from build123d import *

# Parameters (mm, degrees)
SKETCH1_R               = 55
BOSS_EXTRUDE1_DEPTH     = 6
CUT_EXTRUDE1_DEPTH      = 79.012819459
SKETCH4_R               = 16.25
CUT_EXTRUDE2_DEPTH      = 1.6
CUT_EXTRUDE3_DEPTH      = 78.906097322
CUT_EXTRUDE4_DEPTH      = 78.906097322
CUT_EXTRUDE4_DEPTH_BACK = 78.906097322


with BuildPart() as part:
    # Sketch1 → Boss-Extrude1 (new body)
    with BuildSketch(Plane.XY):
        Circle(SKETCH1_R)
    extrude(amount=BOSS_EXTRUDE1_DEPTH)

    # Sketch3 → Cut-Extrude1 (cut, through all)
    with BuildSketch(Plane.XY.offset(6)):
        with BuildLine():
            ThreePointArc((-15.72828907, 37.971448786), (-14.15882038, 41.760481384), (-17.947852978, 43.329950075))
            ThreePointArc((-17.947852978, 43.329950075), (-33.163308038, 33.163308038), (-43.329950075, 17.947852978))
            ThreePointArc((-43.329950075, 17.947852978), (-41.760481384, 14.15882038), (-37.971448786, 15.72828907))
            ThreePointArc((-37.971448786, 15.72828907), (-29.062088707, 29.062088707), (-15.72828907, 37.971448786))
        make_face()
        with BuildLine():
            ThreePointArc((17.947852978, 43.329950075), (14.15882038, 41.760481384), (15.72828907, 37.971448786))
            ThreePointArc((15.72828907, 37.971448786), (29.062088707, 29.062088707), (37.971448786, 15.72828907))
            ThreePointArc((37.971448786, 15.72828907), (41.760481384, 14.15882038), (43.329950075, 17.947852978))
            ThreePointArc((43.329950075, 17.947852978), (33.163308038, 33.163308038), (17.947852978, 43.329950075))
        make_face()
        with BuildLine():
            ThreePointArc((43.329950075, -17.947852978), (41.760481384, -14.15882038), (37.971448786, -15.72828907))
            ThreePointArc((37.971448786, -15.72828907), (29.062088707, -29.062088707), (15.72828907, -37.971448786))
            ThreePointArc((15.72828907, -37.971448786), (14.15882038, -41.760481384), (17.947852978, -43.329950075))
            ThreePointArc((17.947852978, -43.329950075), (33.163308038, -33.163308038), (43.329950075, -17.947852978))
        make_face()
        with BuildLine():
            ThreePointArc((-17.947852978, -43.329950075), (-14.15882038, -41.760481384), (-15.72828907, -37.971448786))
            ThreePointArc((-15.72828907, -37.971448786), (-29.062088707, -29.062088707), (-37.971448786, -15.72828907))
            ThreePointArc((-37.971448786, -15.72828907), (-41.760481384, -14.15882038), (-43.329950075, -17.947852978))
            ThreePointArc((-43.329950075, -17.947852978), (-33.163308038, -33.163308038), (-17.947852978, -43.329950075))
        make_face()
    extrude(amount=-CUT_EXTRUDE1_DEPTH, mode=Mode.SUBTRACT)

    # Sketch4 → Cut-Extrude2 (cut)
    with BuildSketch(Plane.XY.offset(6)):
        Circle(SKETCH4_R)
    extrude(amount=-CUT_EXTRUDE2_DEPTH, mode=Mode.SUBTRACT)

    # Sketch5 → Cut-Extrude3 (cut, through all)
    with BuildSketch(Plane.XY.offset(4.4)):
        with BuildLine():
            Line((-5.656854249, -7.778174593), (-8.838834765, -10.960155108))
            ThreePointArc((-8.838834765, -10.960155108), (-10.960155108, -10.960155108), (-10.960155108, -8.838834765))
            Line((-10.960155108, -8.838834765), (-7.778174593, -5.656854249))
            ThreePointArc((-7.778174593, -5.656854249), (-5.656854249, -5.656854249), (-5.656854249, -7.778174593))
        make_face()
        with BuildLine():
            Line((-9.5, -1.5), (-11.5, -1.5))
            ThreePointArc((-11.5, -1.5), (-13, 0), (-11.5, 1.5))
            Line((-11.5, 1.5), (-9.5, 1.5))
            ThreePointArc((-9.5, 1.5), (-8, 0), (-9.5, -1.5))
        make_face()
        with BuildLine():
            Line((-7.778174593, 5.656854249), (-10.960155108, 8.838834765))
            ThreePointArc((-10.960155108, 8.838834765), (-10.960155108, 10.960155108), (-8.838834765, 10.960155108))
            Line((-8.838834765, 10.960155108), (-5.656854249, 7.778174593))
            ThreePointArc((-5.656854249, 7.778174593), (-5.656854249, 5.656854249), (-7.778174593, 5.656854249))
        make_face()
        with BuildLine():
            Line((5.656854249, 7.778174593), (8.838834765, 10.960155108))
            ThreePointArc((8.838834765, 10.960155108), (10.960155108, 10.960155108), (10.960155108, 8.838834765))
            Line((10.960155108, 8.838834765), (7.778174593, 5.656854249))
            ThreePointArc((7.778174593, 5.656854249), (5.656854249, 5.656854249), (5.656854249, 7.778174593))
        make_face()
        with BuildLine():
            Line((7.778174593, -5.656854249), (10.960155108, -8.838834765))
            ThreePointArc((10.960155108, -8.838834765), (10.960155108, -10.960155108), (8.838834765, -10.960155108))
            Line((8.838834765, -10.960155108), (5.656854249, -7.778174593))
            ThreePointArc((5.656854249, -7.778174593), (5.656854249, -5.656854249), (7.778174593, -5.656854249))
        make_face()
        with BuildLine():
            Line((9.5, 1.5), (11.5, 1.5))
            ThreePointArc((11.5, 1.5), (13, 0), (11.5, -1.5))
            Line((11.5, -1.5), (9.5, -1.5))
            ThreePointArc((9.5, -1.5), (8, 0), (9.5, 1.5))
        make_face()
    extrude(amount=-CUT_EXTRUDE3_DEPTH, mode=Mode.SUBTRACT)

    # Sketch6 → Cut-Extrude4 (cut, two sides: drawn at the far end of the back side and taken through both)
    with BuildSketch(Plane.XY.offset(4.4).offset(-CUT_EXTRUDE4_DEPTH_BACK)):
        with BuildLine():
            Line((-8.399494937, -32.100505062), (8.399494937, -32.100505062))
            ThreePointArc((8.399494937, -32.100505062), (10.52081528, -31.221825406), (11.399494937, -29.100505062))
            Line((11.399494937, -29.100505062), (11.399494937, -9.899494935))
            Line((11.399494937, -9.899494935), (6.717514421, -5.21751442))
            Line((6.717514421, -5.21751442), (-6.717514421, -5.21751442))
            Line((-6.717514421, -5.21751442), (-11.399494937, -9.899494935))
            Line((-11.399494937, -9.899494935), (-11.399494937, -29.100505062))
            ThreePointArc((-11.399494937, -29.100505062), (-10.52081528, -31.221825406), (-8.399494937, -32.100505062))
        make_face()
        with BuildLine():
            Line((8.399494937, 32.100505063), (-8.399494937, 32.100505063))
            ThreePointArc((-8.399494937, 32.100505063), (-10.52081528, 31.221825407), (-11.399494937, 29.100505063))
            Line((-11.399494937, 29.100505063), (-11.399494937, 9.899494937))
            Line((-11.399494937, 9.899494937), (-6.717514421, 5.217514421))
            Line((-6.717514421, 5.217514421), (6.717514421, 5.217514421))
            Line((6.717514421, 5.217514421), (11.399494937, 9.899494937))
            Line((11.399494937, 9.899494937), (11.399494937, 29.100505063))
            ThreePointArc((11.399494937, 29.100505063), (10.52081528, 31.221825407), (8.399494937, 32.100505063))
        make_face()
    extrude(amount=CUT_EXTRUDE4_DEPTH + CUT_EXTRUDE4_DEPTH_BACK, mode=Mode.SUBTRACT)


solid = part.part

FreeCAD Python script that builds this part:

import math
import FreeCAD as App
import Part
import Sketcher

V = App.Vector

doc = App.newDocument("Part")
body = doc.addObject("PartDesign::Body", "Body")

sketch1 = body.newObject("Sketcher::SketchObject", "Sketch")
sketch1.AttachmentSupport = (doc.getObject("XY_Plane"), [""])
sketch1.MapMode = "FlatFace"
sketch1.addGeometry(Part.Circle(V(0, 0, 0), V(0, 0, 1), 55), False)
sketch1.addConstraint([
    Sketcher.Constraint("Coincident", 0, 3, -1, 1),
    Sketcher.Constraint("Diameter", 0, 110.0),
])
pad1 = body.newObject("PartDesign::Pad", "Pad")
pad1.Profile = sketch1
pad1.Length = 6

sketch2 = body.newObject("Sketcher::SketchObject", "Sketch001")
sketch2.AttachmentSupport = (doc.getObject("XY_Plane"), [""])
sketch2.MapMode = "FlatFace"
sketch2.AttachmentOffset = App.Placement(V(0, 0, 6), App.Rotation())
sketch2.addGeometry([
    Part.ArcOfCircle(Part.Circle(V(-16.8, 40.7, 0), V(0, 0, 1), 2.9), math.radians(-67), math.radians(112)),
    Part.ArcOfCircle(Part.Circle(V(0, 0, 0), V(0, 0, 1), 46.9), math.radians(112), math.radians(158)),
    Part.ArcOfCircle(Part.Circle(V(-40.7, 16.8, 0), V(0, 0, 1), 2.9), math.radians(158), math.radians(337)),
    Part.ArcOfCircle(Part.Circle(V(0, 0, 0), V(0, 0, 1), 41.1), math.radians(112), math.radians(158)),
    Part.ArcOfCircle(Part.Circle(V(16.8, 40.7, 0), V(0, 0, 1), 2.9), math.radians(68), math.radians(247)),
    Part.ArcOfCircle(Part.Circle(V(0, 0, 0), V(0, 0, 1), 41.1), math.radians(22), math.radians(68)),
    Part.ArcOfCircle(Part.Circle(V(40.7, 16.8, 0), V(0, 0, 1), 2.9), math.radians(-157), math.radians(22)),
    Part.ArcOfCircle(Part.Circle(V(0, 0, 0), V(0, 0, 1), 46.9), math.radians(22), math.radians(68)),
    Part.ArcOfCircle(Part.Circle(V(40.7, -16.8, 0), V(0, 0, 1), 2.9), math.radians(-22), math.radians(157)),
    Part.ArcOfCircle(Part.Circle(V(0, 0, 0), V(0, 0, 1), 41.1), math.radians(-68), math.radians(-22)),
    Part.ArcOfCircle(Part.Circle(V(16.8, -40.7, 0), V(0, 0, 1), 2.9), math.radians(113), math.radians(292)),
    Part.ArcOfCircle(Part.Circle(V(0, 0, 0), V(0, 0, 1), 46.9), math.radians(-68), math.radians(-22)),
    Part.ArcOfCircle(Part.Circle(V(-16.8, -40.7, 0), V(0, 0, 1), 2.9), math.radians(-112), math.radians(67)),
    Part.ArcOfCircle(Part.Circle(V(0, 0, 0), V(0, 0, 1), 41.1), math.radians(-158), math.radians(-112)),
    Part.ArcOfCircle(Part.Circle(V(-40.7, -16.8, 0), V(0, 0, 1), 2.9), math.radians(23), math.radians(202)),
    Part.ArcOfCircle(Part.Circle(V(0, 0, 0), V(0, 0, 1), 46.9), math.radians(-158), math.radians(-112)),
], False)
sketch2.addConstraint([
    Sketcher.Constraint("Tangent", 0, 2, 1, 1),
    Sketcher.Constraint("Tangent", 1, 2, 2, 1),
    Sketcher.Constraint("Tangent", 2, 2, 3, 2),
    Sketcher.Constraint("Tangent", 3, 1, 0, 1),
    Sketcher.Constraint("Tangent", 4, 2, 5, 2),
    Sketcher.Constraint("Tangent", 5, 1, 6, 1),
    Sketcher.Constraint("Tangent", 6, 2, 7, 1),
    Sketcher.Constraint("Tangent", 7, 2, 4, 1),
    Sketcher.Constraint("Tangent", 8, 2, 9, 2),
    Sketcher.Constraint("Tangent", 9, 1, 10, 1),
    Sketcher.Constraint("Tangent", 10, 2, 11, 1),
    Sketcher.Constraint("Tangent", 11, 2, 8, 1),
    Sketcher.Constraint("Tangent", 12, 2, 13, 2),
    Sketcher.Constraint("Tangent", 13, 1, 14, 1),
    Sketcher.Constraint("Tangent", 14, 2, 15, 1),
    Sketcher.Constraint("Tangent", 15, 2, 12, 1),
    Sketcher.Constraint("Coincident", 1, 3, -1, 1),
    Sketcher.Constraint("Coincident", 3, 3, -1, 1),
    Sketcher.Constraint("Coincident", 5, 3, -1, 1),
    Sketcher.Constraint("Coincident", 7, 3, -1, 1),
    Sketcher.Constraint("Coincident", 9, 3, -1, 1),
    Sketcher.Constraint("Coincident", 11, 3, -1, 1),
    Sketcher.Constraint("Coincident", 13, 3, -1, 1),
    Sketcher.Constraint("Coincident", 15, 3, -1, 1),
    Sketcher.Constraint("Equal", 2, 4),
    Sketcher.Constraint("Equal", 3, 5),
    Sketcher.Constraint("Equal", 6, 8),
    Sketcher.Constraint("Equal", 5, 9),
    Sketcher.Constraint("Equal", 10, 12),
    Sketcher.Constraint("Equal", 9, 13),
    Sketcher.Constraint("Horizontal", 0, 3, 4, 3),
    Sketcher.Constraint("Horizontal", 2, 3, 6, 3),
    Sketcher.Constraint("Horizontal", 10, 3, 12, 3),
    Sketcher.Constraint("Horizontal", 8, 3, 14, 3),
    Sketcher.Constraint("Vertical", 6, 3, 8, 3),
    Sketcher.Constraint("Vertical", 4, 3, 10, 3),
    Sketcher.Constraint("Radius", 0, 2.9),
    Sketcher.Constraint("Radius", 1, 46.9),
    Sketcher.Constraint("DistanceY", -1, 1, 0, 3, 40.650699),
    Sketcher.Constraint("DistanceX", 2, 3, -1, 1, 40.650699),
])
pocket1 = body.newObject("PartDesign::Pocket", "Pocket")
pocket1.Profile = sketch2
pocket1.Type = "ThroughAll"

sketch3 = body.newObject("Sketcher::SketchObject", "Sketch002")
sketch3.AttachmentSupport = (doc.getObject("XY_Plane"), [""])
sketch3.MapMode = "FlatFace"
sketch3.AttachmentOffset = App.Placement(V(0, 0, 6), App.Rotation())
sketch3.addGeometry(Part.Circle(V(0, 0, 0), V(0, 0, 1), 16), False)
sketch3.addConstraint([
    Sketcher.Constraint("Coincident", 0, 3, -1, 1),
    Sketcher.Constraint("Diameter", 0, 32.5),
])
pocket2 = body.newObject("PartDesign::Pocket", "Pocket001")
pocket2.Profile = sketch3
pocket2.Length = 1.6

sketch4 = body.newObject("Sketcher::SketchObject", "Sketch003")
sketch4.AttachmentSupport = (doc.getObject("XY_Plane"), [""])
sketch4.MapMode = "FlatFace"
sketch4.AttachmentOffset = App.Placement(V(0, 0, 4.4), App.Rotation())
sketch4.addGeometry([
    Part.LineSegment(V(-8.8, -11, 0), V(-5.7, -7.8, 0)),
    Part.ArcOfCircle(Part.Circle(V(-6.7, -6.7, 0), V(0, 0, 1), 1.5), math.radians(-45), math.radians(135)),
    Part.LineSegment(V(-7.8, -5.7, 0), V(-11, -8.8, 0)),
    Part.ArcOfCircle(Part.Circle(V(-9.9, -9.9, 0), V(0, 0, 1), 1.5), math.radians(135), math.radians(315)),
    Part.LineSegment(V(-11.5, -1.5, 0), V(-9.5, -1.5, 0)),
    Part.ArcOfCircle(Part.Circle(V(-9.5, 0, 0), V(0, 0, 1), 1.5), math.radians(-90), math.radians(90)),
    Part.LineSegment(V(-9.5, 1.5, 0), V(-11.5, 1.5, 0)),
    Part.ArcOfCircle(Part.Circle(V(-11.5, 0, 0), V(0, 0, 1), 1.5), math.radians(90), math.radians(270)),
    Part.LineSegment(V(-11, 8.8, 0), V(-7.8, 5.7, 0)),
    Part.ArcOfCircle(Part.Circle(V(-6.7, 6.7, 0), V(0, 0, 1), 1.5), math.radians(-135), math.radians(45)),
    Part.LineSegment(V(-5.7, 7.8, 0), V(-8.8, 11, 0)),
    Part.ArcOfCircle(Part.Circle(V(-9.9, 9.9, 0), V(0, 0, 1), 1.5), math.radians(45), math.radians(225)),
    Part.LineSegment(V(8.8, 11, 0), V(5.7, 7.8, 0)),
    Part.ArcOfCircle(Part.Circle(V(6.7, 6.7, 0), V(0, 0, 1), 1.5), math.radians(135), math.radians(315)),
    Part.LineSegment(V(7.8, 5.7, 0), V(11, 8.8, 0)),
    Part.ArcOfCircle(Part.Circle(V(9.9, 9.9, 0), V(0, 0, 1), 1.5), math.radians(-45), math.radians(135)),
    Part.LineSegment(V(11, -8.8, 0), V(7.8, -5.7, 0)),
    Part.ArcOfCircle(Part.Circle(V(6.7, -6.7, 0), V(0, 0, 1), 1.5), math.radians(45), math.radians(225)),
    Part.LineSegment(V(5.7, -7.8, 0), V(8.8, -11, 0)),
    Part.ArcOfCircle(Part.Circle(V(9.9, -9.9, 0), V(0, 0, 1), 1.5), math.radians(-135), math.radians(45)),
    Part.LineSegment(V(11.5, 1.5, 0), V(9.5, 1.5, 0)),
    Part.ArcOfCircle(Part.Circle(V(9.5, 0, 0), V(0, 0, 1), 1.5), math.radians(90), math.radians(270)),
    Part.LineSegment(V(9.5, -1.5, 0), V(11.5, -1.5, 0)),
    Part.ArcOfCircle(Part.Circle(V(11.5, 0, 0), V(0, 0, 1), 1.5), math.radians(-90), math.radians(90)),
], False)
sketch4.addConstraint([
    Sketcher.Constraint("Tangent", 0, 2, 1, 1),
    Sketcher.Constraint("Tangent", 1, 2, 2, 1),
    Sketcher.Constraint("Tangent", 2, 2, 3, 1),
    Sketcher.Constraint("Tangent", 3, 2, 0, 1),
    Sketcher.Constraint("Tangent", 4, 2, 5, 1),
    Sketcher.Constraint("Tangent", 5, 2, 6, 1),
    Sketcher.Constraint("Tangent", 6, 2, 7, 1),
    Sketcher.Constraint("Tangent", 7, 2, 4, 1),
    Sketcher.Constraint("Tangent", 8, 2, 9, 1),
    Sketcher.Constraint("Tangent", 9, 2, 10, 1),
    Sketcher.Constraint("Tangent", 10, 2, 11, 1),
    Sketcher.Constraint("Tangent", 11, 2, 8, 1),
    Sketcher.Constraint("Tangent", 12, 2, 13, 1),
    Sketcher.Constraint("Tangent", 13, 2, 14, 1),
    Sketcher.Constraint("Tangent", 14, 2, 15, 1),
    Sketcher.Constraint("Tangent", 15, 2, 12, 1),
    Sketcher.Constraint("Tangent", 16, 2, 17, 1),
    Sketcher.Constraint("Tangent", 17, 2, 18, 1),
    Sketcher.Constraint("Tangent", 18, 2, 19, 1),
    Sketcher.Constraint("Tangent", 19, 2, 16, 1),
    Sketcher.Constraint("Tangent", 20, 2, 21, 1),
    Sketcher.Constraint("Tangent", 21, 2, 22, 1),
    Sketcher.Constraint("Tangent", 22, 2, 23, 1),
    Sketcher.Constraint("Tangent", 23, 2, 20, 1),
    Sketcher.Constraint("Horizontal", 4),
    Sketcher.Constraint("Horizontal", 6),
    Sketcher.Constraint("Horizontal", 20),
    Sketcher.Constraint("Horizontal", 22),
    Sketcher.Constraint("Equal", 1, 3),
    Sketcher.Constraint("Equal", 3, 5),
    Sketcher.Constraint("Equal", 7, 9),
    Sketcher.Constraint("Equal", 9, 11),
    Sketcher.Constraint("Equal", 11, 13),
    Sketcher.Constraint("Equal", 13, 15),
    Sketcher.Constraint("Equal", 15, 17),
    Sketcher.Constraint("Equal", 17, 19),
    Sketcher.Constraint("Equal", 19, 21),
    Sketcher.Constraint("Symmetric", 1, 3, 13, 3, -1, 1),
    Sketcher.Constraint("Symmetric", 3, 3, 15, 3, -1, 1),
    Sketcher.Constraint("Symmetric", 9, 3, 17, 3, -1, 1),
    Sketcher.Constraint("Symmetric", 11, 3, 19, 3, -1, 1),
    Sketcher.Constraint("Symmetric", 5, 3, 21, 3, -1, 1),
    Sketcher.Constraint("Symmetric", 9, 3, 13, 3, -2),
    Sketcher.Constraint("Symmetric", 11, 3, 15, 3, -2),
    Sketcher.Constraint("Symmetric", 7, 3, 23, 3, -2),
    Sketcher.Constraint("Perpendicular", 2, 8),
    Sketcher.Constraint("Radius", 1, 1.5),
    Sketcher.Constraint("DistanceX", 4, 1, 4, 2, 2.0),
    Sketcher.Constraint("Distance", 0, 4.5),
    Sketcher.Constraint("DistanceX", 5, 3, -1, 1, 9.5),
    Sketcher.Constraint("DistanceY", 1, 3, 9, 3, 13.435029),
    Sketcher.Constraint("DistanceX", 9, 3, 13, 3, 13.435029),
])
pocket3 = body.newObject("PartDesign::Pocket", "Pocket002")
pocket3.Profile = sketch4
pocket3.Type = "ThroughAll"

sketch5 = body.newObject("Sketcher::SketchObject", "Sketch004")
sketch5.AttachmentSupport = (doc.getObject("XY_Plane"), [""])
sketch5.MapMode = "FlatFace"
sketch5.AttachmentOffset = App.Placement(V(0, 0, 4.4), App.Rotation())
sketch5.addGeometry([
    Part.LineSegment(V(-8.4, -32.1, 0), V(8.4, -32.1, 0)),
    Part.ArcOfCircle(Part.Circle(V(8.4, -29.1, 0), V(0, 0, 1), 3), math.radians(-90), math.radians(0)),
    Part.LineSegment(V(11.4, -29.1, 0), V(11.4, -9.9, 0)),
    Part.LineSegment(V(11.4, -9.9, 0), V(6.7, -5.2, 0)),
    Part.LineSegment(V(6.7, -5.2, 0), V(-6.7, -5.2, 0)),
    Part.LineSegment(V(-6.7, -5.2, 0), V(-11.4, -9.9, 0)),
    Part.LineSegment(V(-11.4, -9.9, 0), V(-11.4, -29.1, 0)),
    Part.ArcOfCircle(Part.Circle(V(-8.4, -29.1, 0), V(0, 0, 1), 3), math.radians(180), math.radians(270)),
    Part.LineSegment(V(8.4, 32.1, 0), V(-8.4, 32.1, 0)),
    Part.ArcOfCircle(Part.Circle(V(-8.4, 29.1, 0), V(0, 0, 1), 3), math.radians(90), math.radians(180)),
    Part.LineSegment(V(-11.4, 29.1, 0), V(-11.4, 9.9, 0)),
    Part.LineSegment(V(-11.4, 9.9, 0), V(-6.7, 5.2, 0)),
    Part.LineSegment(V(-6.7, 5.2, 0), V(6.7, 5.2, 0)),
    Part.LineSegment(V(6.7, 5.2, 0), V(11.4, 9.9, 0)),
    Part.LineSegment(V(11.4, 9.9, 0), V(11.4, 29.1, 0)),
    Part.ArcOfCircle(Part.Circle(V(8.4, 29.1, 0), V(0, 0, 1), 3), math.radians(0), math.radians(90)),
], False)
sketch5.addConstraint([
    Sketcher.Constraint("Tangent", 0, 2, 1, 1),
    Sketcher.Constraint("Tangent", 1, 2, 2, 1),
    Sketcher.Constraint("Coincident", 2, 2, 3, 1),
    Sketcher.Constraint("Coincident", 3, 2, 4, 1),
    Sketcher.Constraint("Coincident", 4, 2, 5, 1),
    Sketcher.Constraint("Coincident", 5, 2, 6, 1),
    Sketcher.Constraint("Tangent", 6, 2, 7, 1),
    Sketcher.Constraint("Tangent", 7, 2, 0, 1),
    Sketcher.Constraint("Tangent", 8, 2, 9, 1),
    Sketcher.Constraint("Tangent", 9, 2, 10, 1),
    Sketcher.Constraint("Coincident", 10, 2, 11, 1),
    Sketcher.Constraint("Coincident", 11, 2, 12, 1),
    Sketcher.Constraint("Coincident", 12, 2, 13, 1),
    Sketcher.Constraint("Coincident", 13, 2, 14, 1),
    Sketcher.Constraint("Tangent", 14, 2, 15, 1),
    Sketcher.Constraint("Tangent", 15, 2, 8, 1),
    Sketcher.Constraint("Horizontal", 0),
    Sketcher.Constraint("Vertical", 2),
    Sketcher.Constraint("Horizontal", 4),
    Sketcher.Constraint("Vertical", 6),
    Sketcher.Constraint("Horizontal", 8),
    Sketcher.Constraint("Vertical", 10),
    Sketcher.Constraint("Horizontal", 12),
    Sketcher.Constraint("Vertical", 14),
    Sketcher.Constraint("Equal", 1, 7),
    Sketcher.Constraint("Equal", 7, 9),
    Sketcher.Constraint("Equal", 9, 15),
    Sketcher.Constraint("Symmetric", 1, 3, 9, 3, -1, 1),
    Sketcher.Constraint("Symmetric", 3, 2, 11, 2, -1, 1),
    Sketcher.Constraint("Symmetric", 5, 2, 13, 2, -1, 1),
    Sketcher.Constraint("Symmetric", 2, 2, 5, 2, -2),
    Sketcher.Constraint("Perpendicular", 3, 5),
    Sketcher.Constraint("Perpendicular", 5, 11),
    Sketcher.Constraint("Perpendicular", 11, 13),
    Sketcher.Constraint("Vertical", 4, 2, 11, 2),
    Sketcher.Constraint("Radius", 1, 3.0),
    Sketcher.Constraint("DistanceY", 2, 2, 15, 3, 39.0),
    Sketcher.Constraint("DistanceX", 0, 1, 0, 2, 16.79899),
    Sketcher.Constraint("DistanceX", 4, 2, 4, 1, 13.435029),
    Sketcher.Constraint("DistanceY", 2, 1, 2, 2, 19.20101),
])
pocket4 = body.newObject("PartDesign::Pocket", "Pocket003")
pocket4.Profile = sketch5
pocket4.Type = "ThroughAll"
pocket4.Midplane = True

doc.recompute()
